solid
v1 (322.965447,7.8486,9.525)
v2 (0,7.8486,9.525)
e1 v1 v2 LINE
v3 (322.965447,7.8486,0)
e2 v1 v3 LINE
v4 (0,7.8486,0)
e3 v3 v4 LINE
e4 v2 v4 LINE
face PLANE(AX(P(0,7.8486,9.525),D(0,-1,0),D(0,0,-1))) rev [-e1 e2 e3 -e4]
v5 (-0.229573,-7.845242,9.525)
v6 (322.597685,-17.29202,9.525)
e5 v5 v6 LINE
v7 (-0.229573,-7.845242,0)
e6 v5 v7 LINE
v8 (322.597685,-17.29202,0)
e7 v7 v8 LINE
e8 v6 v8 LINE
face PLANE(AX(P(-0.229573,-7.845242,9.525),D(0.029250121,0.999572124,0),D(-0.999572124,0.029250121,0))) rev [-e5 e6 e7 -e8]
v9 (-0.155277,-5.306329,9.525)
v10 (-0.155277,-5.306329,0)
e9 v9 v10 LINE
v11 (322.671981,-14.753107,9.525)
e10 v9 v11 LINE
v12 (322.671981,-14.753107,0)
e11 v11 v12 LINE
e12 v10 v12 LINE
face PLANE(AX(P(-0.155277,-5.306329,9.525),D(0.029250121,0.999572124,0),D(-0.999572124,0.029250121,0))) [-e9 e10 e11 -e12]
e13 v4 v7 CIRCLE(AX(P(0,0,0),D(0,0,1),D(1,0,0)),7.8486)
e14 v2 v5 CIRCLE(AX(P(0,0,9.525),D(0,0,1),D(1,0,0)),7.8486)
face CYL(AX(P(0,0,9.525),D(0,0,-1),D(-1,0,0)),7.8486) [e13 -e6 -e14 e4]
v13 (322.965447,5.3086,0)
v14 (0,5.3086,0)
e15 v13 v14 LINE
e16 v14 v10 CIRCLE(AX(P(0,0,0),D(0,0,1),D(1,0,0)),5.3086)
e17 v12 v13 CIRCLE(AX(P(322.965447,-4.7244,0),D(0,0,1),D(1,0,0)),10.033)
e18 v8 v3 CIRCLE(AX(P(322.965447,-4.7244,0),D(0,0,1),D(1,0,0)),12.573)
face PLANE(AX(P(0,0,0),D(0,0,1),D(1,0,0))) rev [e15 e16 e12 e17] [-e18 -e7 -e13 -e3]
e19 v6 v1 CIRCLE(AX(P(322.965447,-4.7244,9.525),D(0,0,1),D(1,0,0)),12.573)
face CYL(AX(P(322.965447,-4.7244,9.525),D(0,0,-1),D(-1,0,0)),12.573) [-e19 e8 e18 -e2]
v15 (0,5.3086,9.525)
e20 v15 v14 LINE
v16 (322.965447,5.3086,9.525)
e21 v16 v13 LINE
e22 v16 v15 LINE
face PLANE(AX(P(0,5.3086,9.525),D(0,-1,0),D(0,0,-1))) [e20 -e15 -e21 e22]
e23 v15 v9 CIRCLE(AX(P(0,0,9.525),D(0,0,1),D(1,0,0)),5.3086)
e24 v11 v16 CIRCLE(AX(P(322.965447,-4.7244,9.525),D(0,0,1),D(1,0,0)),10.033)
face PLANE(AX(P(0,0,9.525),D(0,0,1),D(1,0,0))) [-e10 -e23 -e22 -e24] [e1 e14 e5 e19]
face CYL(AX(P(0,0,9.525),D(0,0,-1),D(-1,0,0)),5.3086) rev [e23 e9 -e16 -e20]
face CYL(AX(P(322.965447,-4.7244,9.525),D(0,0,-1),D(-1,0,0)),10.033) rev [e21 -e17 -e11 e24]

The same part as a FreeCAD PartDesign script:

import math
import FreeCAD as App
import Part
import Sketcher
from FreeCAD import Vector
Q = App.Units.Quantity

doc = App.newDocument("Part")
body = doc.addObject("PartDesign::Body", "Body")

sketch1 = body.newObject("Sketcher::SketchObject", "Sketch")
sketch1.AttachmentSupport = (doc.getObject("XY_Plane"), [""])
sketch1.MapMode = "FlatFace"
sketch1.addGeometry([
    Part.LineSegment(Vector(322.965447, 7.8486, 0), Vector(0, 7.8486, 0)),
    Part.ArcOfCircle(Part.Circle(Vector(0, 0, 0), Vector(0, 0, 1), 7.8486), math.radians(90), math.radians(268.323852)),
    Part.LineSegment(Vector(-0.229573, -7.845242, 0), Vector(322.597685, -17.29202, 0)),
    Part.ArcOfCircle(Part.Circle(Vector(322.965447, -4.7244, 0), Vector(0, 0, 1), 12.573), math.radians(-91.676148), math.radians(90)),
    Part.LineSegment(Vector(0, 5.3086, 0), Vector(322.965447, 5.3086, 0)),
    Part.ArcOfCircle(Part.Circle(Vector(322.965447, -4.7244, 0), Vector(0, 0, 1), 10.033), math.radians(-91.676148), math.radians(90)),
    Part.LineSegment(Vector(322.671981, -14.753107, 0), Vector(-0.155277, -5.306329, 0)),
    Part.ArcOfCircle(Part.Circle(Vector(0, 0, 0), Vector(0, 0, 1), 5.3086), math.radians(90), math.radians(268.323852)),
], False)
sketch1.addConstraint([
    Sketcher.Constraint("Tangent", 0, 2, 1, 1),
    Sketcher.Constraint("Tangent", 1, 2, 2, 1),
    Sketcher.Constraint("Tangent", 2, 2, 3, 1),
    Sketcher.Constraint("Tangent", 3, 2, 0, 1),
    Sketcher.Constraint("Tangent", 4, 2, 5, 2),
    Sketcher.Constraint("Tangent", 5, 1, 6, 1),
    Sketcher.Constraint("Tangent", 6, 2, 7, 2),
    Sketcher.Constraint("Tangent", 7, 1, 4, 1),
    Sketcher.Constraint("Horizontal", 0),
    Sketcher.Constraint("Horizontal", 4),
    Sketcher.Constraint("Coincident", 1, 3, -1, 1),
    Sketcher.Constraint("Coincident", 7, 3, -1, 1),
    Sketcher.Constraint("Coincident", 5, 3, 3, 3),
    Sketcher.Constraint("Radius", 1, Q("0.309 in")),
    Sketcher.Constraint("Radius", 3, Q("0.495 in")),
    Sketcher.Constraint("Radius", 5, Q("0.395 in")),
    Sketcher.Constraint("DistanceX", 0, 2, 0, 1, 322.965447),
])
pad1 = body.newObject("PartDesign::Pad", "Pad")
pad1.Profile = sketch1
pad1.Length = Q("0.375 in")

doc.recompute()
